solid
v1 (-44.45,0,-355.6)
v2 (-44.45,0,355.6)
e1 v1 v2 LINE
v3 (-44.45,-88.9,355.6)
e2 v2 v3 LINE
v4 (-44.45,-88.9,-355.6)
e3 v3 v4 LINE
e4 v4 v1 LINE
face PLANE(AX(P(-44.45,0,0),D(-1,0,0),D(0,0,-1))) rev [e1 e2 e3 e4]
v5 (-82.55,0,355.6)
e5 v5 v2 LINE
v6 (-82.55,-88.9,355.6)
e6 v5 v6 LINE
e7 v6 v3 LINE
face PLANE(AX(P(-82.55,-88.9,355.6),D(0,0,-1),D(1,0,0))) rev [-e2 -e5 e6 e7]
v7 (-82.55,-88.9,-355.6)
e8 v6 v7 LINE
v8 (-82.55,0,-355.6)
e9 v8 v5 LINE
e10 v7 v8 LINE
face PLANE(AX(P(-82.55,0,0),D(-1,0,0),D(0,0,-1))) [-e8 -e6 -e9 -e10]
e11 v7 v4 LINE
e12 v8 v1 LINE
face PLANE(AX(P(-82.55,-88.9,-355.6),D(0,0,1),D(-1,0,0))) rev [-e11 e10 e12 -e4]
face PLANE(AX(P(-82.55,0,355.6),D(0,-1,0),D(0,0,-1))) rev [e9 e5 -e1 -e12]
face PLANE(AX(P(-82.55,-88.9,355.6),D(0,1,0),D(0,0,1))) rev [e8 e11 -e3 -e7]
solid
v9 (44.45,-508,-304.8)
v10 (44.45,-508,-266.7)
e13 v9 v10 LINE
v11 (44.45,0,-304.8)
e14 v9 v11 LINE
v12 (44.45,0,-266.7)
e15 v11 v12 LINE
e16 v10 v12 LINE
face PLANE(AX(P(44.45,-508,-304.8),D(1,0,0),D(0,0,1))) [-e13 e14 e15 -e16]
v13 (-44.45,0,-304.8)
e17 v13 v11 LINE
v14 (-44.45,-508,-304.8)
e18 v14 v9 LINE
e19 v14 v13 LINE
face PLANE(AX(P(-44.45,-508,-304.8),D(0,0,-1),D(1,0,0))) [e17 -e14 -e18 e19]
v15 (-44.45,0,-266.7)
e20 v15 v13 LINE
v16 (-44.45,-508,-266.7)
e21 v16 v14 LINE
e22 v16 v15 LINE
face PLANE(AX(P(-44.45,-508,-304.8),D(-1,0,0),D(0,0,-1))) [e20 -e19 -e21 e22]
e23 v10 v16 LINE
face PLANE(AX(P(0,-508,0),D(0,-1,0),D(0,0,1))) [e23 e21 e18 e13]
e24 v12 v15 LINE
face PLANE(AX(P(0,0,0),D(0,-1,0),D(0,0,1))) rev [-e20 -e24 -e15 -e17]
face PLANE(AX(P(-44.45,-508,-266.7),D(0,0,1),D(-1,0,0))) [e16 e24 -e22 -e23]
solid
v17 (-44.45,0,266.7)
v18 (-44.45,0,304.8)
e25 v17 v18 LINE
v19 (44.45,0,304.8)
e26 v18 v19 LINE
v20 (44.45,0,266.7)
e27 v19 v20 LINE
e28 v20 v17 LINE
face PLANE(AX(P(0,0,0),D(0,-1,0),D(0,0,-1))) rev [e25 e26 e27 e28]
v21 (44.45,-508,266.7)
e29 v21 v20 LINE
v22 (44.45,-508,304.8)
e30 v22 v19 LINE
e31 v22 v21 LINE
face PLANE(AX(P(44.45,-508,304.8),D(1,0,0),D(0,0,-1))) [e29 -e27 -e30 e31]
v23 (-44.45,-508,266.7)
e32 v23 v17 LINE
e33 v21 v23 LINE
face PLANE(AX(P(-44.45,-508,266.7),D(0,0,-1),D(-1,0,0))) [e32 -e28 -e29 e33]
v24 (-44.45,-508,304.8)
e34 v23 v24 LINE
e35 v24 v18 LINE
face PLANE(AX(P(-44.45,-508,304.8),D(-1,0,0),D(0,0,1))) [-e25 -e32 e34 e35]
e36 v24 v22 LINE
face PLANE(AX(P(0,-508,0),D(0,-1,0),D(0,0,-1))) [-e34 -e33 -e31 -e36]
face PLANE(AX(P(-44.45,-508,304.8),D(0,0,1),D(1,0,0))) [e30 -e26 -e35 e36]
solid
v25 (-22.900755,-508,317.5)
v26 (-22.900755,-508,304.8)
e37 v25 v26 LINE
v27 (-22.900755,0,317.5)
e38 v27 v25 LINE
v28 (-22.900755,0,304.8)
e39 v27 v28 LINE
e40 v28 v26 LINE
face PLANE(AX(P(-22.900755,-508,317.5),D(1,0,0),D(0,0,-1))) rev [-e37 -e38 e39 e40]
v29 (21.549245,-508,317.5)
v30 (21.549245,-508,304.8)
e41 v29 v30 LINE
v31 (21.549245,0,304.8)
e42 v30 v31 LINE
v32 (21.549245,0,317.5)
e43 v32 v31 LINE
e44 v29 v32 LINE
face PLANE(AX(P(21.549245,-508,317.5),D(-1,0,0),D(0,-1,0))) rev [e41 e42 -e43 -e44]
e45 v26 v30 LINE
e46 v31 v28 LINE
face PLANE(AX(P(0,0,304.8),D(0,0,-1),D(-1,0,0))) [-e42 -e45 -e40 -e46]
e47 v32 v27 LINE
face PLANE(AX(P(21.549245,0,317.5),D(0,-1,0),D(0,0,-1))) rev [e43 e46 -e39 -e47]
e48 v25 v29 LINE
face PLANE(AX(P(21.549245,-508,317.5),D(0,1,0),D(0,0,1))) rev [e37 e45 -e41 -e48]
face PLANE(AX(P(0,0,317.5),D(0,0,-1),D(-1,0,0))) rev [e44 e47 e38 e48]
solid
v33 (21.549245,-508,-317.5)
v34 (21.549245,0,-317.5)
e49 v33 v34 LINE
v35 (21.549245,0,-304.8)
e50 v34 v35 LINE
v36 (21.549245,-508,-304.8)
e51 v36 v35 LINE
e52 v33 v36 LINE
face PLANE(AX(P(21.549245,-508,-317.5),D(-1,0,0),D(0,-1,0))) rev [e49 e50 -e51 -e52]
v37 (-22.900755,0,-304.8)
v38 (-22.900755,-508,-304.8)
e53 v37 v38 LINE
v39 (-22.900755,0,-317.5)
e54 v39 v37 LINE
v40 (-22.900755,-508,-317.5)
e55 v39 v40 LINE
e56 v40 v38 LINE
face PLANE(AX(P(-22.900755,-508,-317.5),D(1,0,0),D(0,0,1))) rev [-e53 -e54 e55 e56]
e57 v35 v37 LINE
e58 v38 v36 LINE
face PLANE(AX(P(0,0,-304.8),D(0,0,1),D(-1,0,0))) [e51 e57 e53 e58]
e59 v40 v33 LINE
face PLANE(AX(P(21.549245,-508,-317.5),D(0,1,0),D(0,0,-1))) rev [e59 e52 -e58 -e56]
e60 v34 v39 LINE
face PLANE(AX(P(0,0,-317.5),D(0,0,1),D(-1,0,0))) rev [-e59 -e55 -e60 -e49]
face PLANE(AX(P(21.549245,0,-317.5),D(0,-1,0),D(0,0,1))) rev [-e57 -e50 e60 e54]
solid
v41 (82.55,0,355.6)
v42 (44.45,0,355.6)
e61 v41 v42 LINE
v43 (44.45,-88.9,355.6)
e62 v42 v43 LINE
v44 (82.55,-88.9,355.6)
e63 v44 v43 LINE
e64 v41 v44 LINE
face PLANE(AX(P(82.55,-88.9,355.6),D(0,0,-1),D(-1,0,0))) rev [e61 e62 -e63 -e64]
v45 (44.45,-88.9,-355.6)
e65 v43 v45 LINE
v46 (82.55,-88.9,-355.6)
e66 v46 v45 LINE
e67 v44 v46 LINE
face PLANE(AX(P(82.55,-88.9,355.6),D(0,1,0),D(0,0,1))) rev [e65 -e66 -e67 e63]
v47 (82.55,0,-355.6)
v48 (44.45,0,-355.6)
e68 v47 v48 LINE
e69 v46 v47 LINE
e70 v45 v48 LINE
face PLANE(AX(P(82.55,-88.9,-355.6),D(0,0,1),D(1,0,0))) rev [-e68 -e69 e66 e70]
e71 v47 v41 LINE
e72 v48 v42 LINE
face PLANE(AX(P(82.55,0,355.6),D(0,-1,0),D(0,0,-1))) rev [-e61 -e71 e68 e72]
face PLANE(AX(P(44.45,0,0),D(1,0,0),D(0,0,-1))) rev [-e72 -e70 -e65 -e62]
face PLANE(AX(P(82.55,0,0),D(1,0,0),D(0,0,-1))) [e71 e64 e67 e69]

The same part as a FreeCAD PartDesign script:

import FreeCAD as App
import Part
import Sketcher

V = App.Vector
Q = App.Units.Quantity


def add_polygon(sketch, points):
    """Adds a closed chain of lines whose ends are joined by coincident constraints."""
    first, n = sketch.GeometryCount, len(points)
    for a, b in zip(points, points[1:] + points[:1]):
        sketch.addGeometry(Part.LineSegment(App.Vector(*a, 0), App.Vector(*b, 0)), False)
    for i in range(n):
        sketch.addConstraint(Sketcher.Constraint("Coincident", first + i, 2, first + (i + 1) % n, 1))

doc = App.newDocument("Part")
params = doc.addObject("Spreadsheet::Sheet", "Params")
for row, (alias, value) in enumerate([
    ("sketch1_width", "3.5 in"),
    ("sketch1_height", "1.5 in"),
    ("pad1_length", "20 in"),
    ("sketch2_height", "28 in"),
    ("sketch2_width", "3.5 in"),
    ("pad2_length", "1.5 in"),
    ("sketch3_height", "20 in"),
    ("sketch3_width", "1.75 in"),
    ("pad3_length", "0.5 in"),
], start=1):
    params.set(f"A{row}", alias)
    params.set(f"B{row}", "=" + value)
    params.setAlias(f"B{row}", alias)

body = doc.addObject("PartDesign::Body", "Body")

sketch1 = doc.addObject("Sketcher::SketchObject", "Sketch")
body.addObject(sketch1)
sketch1.AttachmentSupport = (doc.XZ_Plane, [""])
sketch1.MapMode = "FlatFace"
add_polygon(sketch1, [(-44, 267), (-44, 305), (44, 305), (44, 267)])
sketch1.addConstraint([
    Sketcher.Constraint("Vertical", 0),
    Sketcher.Constraint("Horizontal", 1),
    Sketcher.Constraint("Vertical", 2),
    Sketcher.Constraint("Horizontal", 3),
    Sketcher.Constraint("DistanceX", 1, 1, 1, 2, Q("3.5 in")),
    Sketcher.Constraint("DistanceY", 0, 1, 0, 2, Q("1.5 in")),
    Sketcher.Constraint("DistanceY", -1, 1, 0, 2, Q("12 in")),
    Sketcher.Constraint("DistanceX", 0, 2, -1, 1, Q("1.75 in")),
])
sketch1.setExpression("Constraints[8]", "Params.sketch1_width")
sketch1.setExpression("Constraints[9]", "Params.sketch1_height")
pad1 = doc.addObject("PartDesign::Pad", "Pad")
body.addObject(pad1)
pad1.Profile = sketch1
pad1.setExpression("Length", "Params.pad1_length")
body2 = doc.addObject("PartDesign::Body", "Body001")
doc.recompute()

mirroring = doc.addObject("Part::Mirroring", "Mirroring")
mirroring.Source = body
mirroring.Base = V(0, 0, 0)
mirroring.Normal = V(0, 0, 1)
body2.BaseFeature = mirroring
doc.recompute()
body3 = doc.addObject("PartDesign::Body", "Body002")

sketch2 = doc.addObject("Sketcher::SketchObject", "Sketch001")
body3.addObject(sketch2)
sketch2.AttachmentSupport = (doc.getObject("YZ_Plane002"), [""])
sketch2.MapMode = "FlatFace"
sketch2.AttachmentOffset = App.Placement(V(0, 0, 1.75 * 25.4), App.Rotation())
add_polygon(sketch2, [(0, 356), (-89, 356), (-89, -356), (0, -356)])
sketch2.addConstraint([
    Sketcher.Constraint("Horizontal", 0),
    Sketcher.Constraint("Vertical", 1),
    Sketcher.Constraint("Horizontal", 2),
    Sketcher.Constraint("Vertical", 3),
    Sketcher.Constraint("Symmetric", 2, 2, 3, 2, -1, 1),
    Sketcher.Constraint("DistanceY", 1, 2, 1, 1, Q("28 in")),
    Sketcher.Constraint("DistanceX", 0, 2, 0, 1, Q("3.5 in")),
])
sketch2.setExpression("Constraints[9]", "Params.sketch2_height")
sketch2.setExpression("Constraints[10]", "Params.sketch2_width")
pad2 = doc.addObject("PartDesign::Pad", "Pad001")
body3.addObject(pad2)
pad2.Profile = sketch2
pad2.setExpression("Length", "Params.pad2_length")
body4 = doc.addObject("PartDesign::Body", "Body003")
doc.recompute()

mirroring2 = doc.addObject("Part::Mirroring", "Mirroring001")
mirroring2.Source = body3
mirroring2.Base = V(0, 0, 0)
mirroring2.Normal = V(1, 0, 0)
body4.BaseFeature = mirroring2
doc.recompute()
body5 = doc.addObject("PartDesign::Body", "Body004")

sketch3 = doc.addObject("Sketcher::SketchObject", "Sketch002")
body5.addObject(sketch3)
sketch3.AttachmentSupport = (doc.getObject("XY_Plane004"), [""])
sketch3.MapMode = "FlatFace"
sketch3.AttachmentOffset = App.Placement(V(0, 0, 12 * 25.4), App.Rotation())
add_polygon(sketch3, [(-23, 0), (-23, -508), (22, -508), (22, 0)])
sketch3.addConstraint([
    Sketcher.Constraint("Vertical", 0),
    Sketcher.Constraint("Horizontal", 1),
    Sketcher.Constraint("Vertical", 2),
    Sketcher.Constraint("Horizontal", 3),
    Sketcher.Constraint("PointOnObject", 2, 2, -1),
    Sketcher.Constraint("DistanceY", 0, 2, 0, 1, Q("20 in")),
    Sketcher.Constraint("DistanceX", 1, 1, 1, 2, Q("1.75 in")),
    Sketcher.Constraint("DistanceX", 0, 2, -1, 1, Q("22.900755 mm")),
])
sketch3.setExpression("Constraints[9]", "Params.sketch3_height")
sketch3.setExpression("Constraints[10]", "Params.sketch3_width")
pad3 = doc.addObject("PartDesign::Pad", "Pad002")
body5.addObject(pad3)
pad3.Profile = sketch3
pad3.setExpression("Length", "Params.pad3_length")
body6 = doc.addObject("PartDesign::Body", "Body005")
doc.recompute()

mirroring3 = doc.addObject("Part::Mirroring", "Mirroring002")
mirroring3.Source = body5
mirroring3.Base = V(0, 0, 0)
mirroring3.Normal = V(0, 0, 1)
body6.BaseFeature = mirroring3
doc.recompute()
mirroring.Visibility = False
mirroring2.Visibility = False
mirroring3.Visibility = False

doc.recompute()
